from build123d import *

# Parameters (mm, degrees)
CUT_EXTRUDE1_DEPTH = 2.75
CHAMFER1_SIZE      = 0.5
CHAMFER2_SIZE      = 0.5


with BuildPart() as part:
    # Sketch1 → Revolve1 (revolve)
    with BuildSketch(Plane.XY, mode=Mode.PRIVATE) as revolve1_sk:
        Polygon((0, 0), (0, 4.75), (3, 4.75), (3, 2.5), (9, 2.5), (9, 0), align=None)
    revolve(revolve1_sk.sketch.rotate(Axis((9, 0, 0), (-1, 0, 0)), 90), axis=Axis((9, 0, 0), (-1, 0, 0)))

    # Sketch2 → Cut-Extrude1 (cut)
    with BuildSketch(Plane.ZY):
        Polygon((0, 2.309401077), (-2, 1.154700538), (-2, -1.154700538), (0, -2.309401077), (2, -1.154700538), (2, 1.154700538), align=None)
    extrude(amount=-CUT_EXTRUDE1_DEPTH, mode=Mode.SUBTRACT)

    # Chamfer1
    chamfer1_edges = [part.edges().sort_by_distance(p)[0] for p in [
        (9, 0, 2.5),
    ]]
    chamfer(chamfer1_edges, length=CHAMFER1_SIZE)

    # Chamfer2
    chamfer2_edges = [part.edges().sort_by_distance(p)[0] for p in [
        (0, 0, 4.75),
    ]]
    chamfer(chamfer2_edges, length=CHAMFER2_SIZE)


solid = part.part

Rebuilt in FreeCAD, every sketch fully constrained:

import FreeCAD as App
import Part
import Sketcher
Q = App.Units.Quantity


def edges_at(feature, points):
    """Names of the edges that pass closest to the given points."""
    edges = feature.Shape.Edges
    near = lambda p: min(range(len(edges)), key=lambda i: edges[i].distToShape(Part.Vertex(*p))[0])
    return sorted({f"Edge{near(p) + 1}" for p in points})

doc = App.newDocument("Part")
body = doc.addObject("PartDesign::Body", "Body")

# Sketch on XY plane
sketch1 = doc.addObject("Sketcher::SketchObject", "Sketch")
body.addObject(sketch1)
sketch1.AttachmentSupport = (doc.XY_Plane, [""])
sketch1.MapMode = "FlatFace"
sketch1.addGeometry([
    Part.LineSegment(App.Vector(0, 4.8, 0), App.Vector(0, 0, 0)),  # 0
    Part.LineSegment(App.Vector(0, 0, 0), App.Vector(9, 0, 0)),  # 1
    Part.LineSegment(App.Vector(9, 0, 0), App.Vector(9, 2.5, 0)),  # 2
    Part.LineSegment(App.Vector(9, 2.5, 0), App.Vector(3, 2.5, 0)),  # 3
    Part.LineSegment(App.Vector(3, 2.5, 0), App.Vector(3, 4.8, 0)),  # 4
    Part.LineSegment(App.Vector(3, 4.8, 0), App.Vector(0, 4.8, 0)),  # 5
], False)
sketch1.addConstraint([
    Sketcher.Constraint("Coincident", 0, 2, 1, 1),
    Sketcher.Constraint("Coincident", 1, 2, 2, 1),
    Sketcher.Constraint("Coincident", 2, 2, 3, 1),
    Sketcher.Constraint("Coincident", 3, 2, 4, 1),
    Sketcher.Constraint("Coincident", 4, 2, 5, 1),
    Sketcher.Constraint("Coincident", 5, 2, 0, 1),
    Sketcher.Constraint("Vertical", 0),
    Sketcher.Constraint("Horizontal", 1),
    Sketcher.Constraint("Vertical", 2),
    Sketcher.Constraint("Horizontal", 3),
    Sketcher.Constraint("Vertical", 4),
    Sketcher.Constraint("Horizontal", 5),
    Sketcher.Constraint("Coincident", 0, 2, -1, 1),
    Sketcher.Constraint("DistanceX", 1, 1, 1, 2, 9.0),
    Sketcher.Constraint("DistanceX", 3, 2, 3, 1, 6.0),
    Sketcher.Constraint("DistanceY", 2, 1, 2, 2, 2.5),
    Sketcher.Constraint("DistanceY", 0, 2, 0, 1, 4.75),
])
revolution = doc.addObject("PartDesign::Revolution", "Revolution")
body.addObject(revolution)
revolution.Profile = sketch1
revolution.ReferenceAxis = (sketch1, ["H_Axis"])
revolution.Angle = 360

# Sketch on YZ plane
sketch2 = doc.addObject("Sketcher::SketchObject", "Sketch001")
body.addObject(sketch2)
sketch2.AttachmentSupport = (doc.YZ_Plane, [""])
sketch2.MapMode = "FlatFace"
sketch2.addGeometry([
    Part.LineSegment(App.Vector(2.3, 0, 0), App.Vector(1.2, -2, 0)),  # 0
    Part.LineSegment(App.Vector(1.2, -2, 0), App.Vector(-1.2, -2, 0)),  # 1
    Part.LineSegment(App.Vector(-1.2, -2, 0), App.Vector(-2.3, 0, 0)),  # 2
    Part.LineSegment(App.Vector(-2.3, 0, 0), App.Vector(-1.2, 2, 0)),  # 3
    Part.LineSegment(App.Vector(-1.2, 2, 0), App.Vector(1.2, 2, 0)),  # 4
    Part.LineSegment(App.Vector(1.2, 2, 0), App.Vector(2.3, 0, 0)),  # 5
], False)
sketch2.addConstraint([
    Sketcher.Constraint("Coincident", 0, 2, 1, 1),
    Sketcher.Constraint("Coincident", 1, 2, 2, 1),
    Sketcher.Constraint("Coincident", 2, 2, 3, 1),
    Sketcher.Constraint("Coincident", 3, 2, 4, 1),
    Sketcher.Constraint("Coincident", 4, 2, 5, 1),
    Sketcher.Constraint("Coincident", 5, 2, 0, 1),
    Sketcher.Constraint("Horizontal", 1),
    Sketcher.Constraint("Horizontal", 4),
    Sketcher.Constraint("Symmetric", 0, 2, 3, 2, -1, 1),
    Sketcher.Constraint("Symmetric", 2, 2, 5, 2, -1, 1),
    Sketcher.Constraint("PointOnObject", 2, 2, -1),
    Sketcher.Constraint("Parallel", 2, 5),
    Sketcher.Constraint("Vertical", 1, 2, 3, 2),
    Sketcher.Constraint("Angle", 0, Q("-120 deg")),
    Sketcher.Constraint("DistanceY", 0, 2, -1, 1, 2.0),
    Sketcher.Constraint("DistanceX", 1, 2, 1, 1, 2.309401),
])
pocket1 = doc.addObject("PartDesign::Pocket", "Pocket")
body.addObject(pocket1)
pocket1.Profile = sketch2
pocket1.Length = 2.75
pocket1.Reversed = True
doc.recompute()

chamfer = doc.addObject("PartDesign::Chamfer", "Chamfer")
body.addObject(chamfer)
chamfer.Base = (pocket1, edges_at(pocket1, [(9, 0, 2.5)]))
chamfer.Size = 0.5
doc.recompute()

chamfer2 = doc.addObject("PartDesign::Chamfer", "Chamfer001")
body.addObject(chamfer2)
chamfer2.Base = (chamfer, edges_at(chamfer, [(0, 0, 4.75)]))
chamfer2.Size = 0.5

doc.recompute()
